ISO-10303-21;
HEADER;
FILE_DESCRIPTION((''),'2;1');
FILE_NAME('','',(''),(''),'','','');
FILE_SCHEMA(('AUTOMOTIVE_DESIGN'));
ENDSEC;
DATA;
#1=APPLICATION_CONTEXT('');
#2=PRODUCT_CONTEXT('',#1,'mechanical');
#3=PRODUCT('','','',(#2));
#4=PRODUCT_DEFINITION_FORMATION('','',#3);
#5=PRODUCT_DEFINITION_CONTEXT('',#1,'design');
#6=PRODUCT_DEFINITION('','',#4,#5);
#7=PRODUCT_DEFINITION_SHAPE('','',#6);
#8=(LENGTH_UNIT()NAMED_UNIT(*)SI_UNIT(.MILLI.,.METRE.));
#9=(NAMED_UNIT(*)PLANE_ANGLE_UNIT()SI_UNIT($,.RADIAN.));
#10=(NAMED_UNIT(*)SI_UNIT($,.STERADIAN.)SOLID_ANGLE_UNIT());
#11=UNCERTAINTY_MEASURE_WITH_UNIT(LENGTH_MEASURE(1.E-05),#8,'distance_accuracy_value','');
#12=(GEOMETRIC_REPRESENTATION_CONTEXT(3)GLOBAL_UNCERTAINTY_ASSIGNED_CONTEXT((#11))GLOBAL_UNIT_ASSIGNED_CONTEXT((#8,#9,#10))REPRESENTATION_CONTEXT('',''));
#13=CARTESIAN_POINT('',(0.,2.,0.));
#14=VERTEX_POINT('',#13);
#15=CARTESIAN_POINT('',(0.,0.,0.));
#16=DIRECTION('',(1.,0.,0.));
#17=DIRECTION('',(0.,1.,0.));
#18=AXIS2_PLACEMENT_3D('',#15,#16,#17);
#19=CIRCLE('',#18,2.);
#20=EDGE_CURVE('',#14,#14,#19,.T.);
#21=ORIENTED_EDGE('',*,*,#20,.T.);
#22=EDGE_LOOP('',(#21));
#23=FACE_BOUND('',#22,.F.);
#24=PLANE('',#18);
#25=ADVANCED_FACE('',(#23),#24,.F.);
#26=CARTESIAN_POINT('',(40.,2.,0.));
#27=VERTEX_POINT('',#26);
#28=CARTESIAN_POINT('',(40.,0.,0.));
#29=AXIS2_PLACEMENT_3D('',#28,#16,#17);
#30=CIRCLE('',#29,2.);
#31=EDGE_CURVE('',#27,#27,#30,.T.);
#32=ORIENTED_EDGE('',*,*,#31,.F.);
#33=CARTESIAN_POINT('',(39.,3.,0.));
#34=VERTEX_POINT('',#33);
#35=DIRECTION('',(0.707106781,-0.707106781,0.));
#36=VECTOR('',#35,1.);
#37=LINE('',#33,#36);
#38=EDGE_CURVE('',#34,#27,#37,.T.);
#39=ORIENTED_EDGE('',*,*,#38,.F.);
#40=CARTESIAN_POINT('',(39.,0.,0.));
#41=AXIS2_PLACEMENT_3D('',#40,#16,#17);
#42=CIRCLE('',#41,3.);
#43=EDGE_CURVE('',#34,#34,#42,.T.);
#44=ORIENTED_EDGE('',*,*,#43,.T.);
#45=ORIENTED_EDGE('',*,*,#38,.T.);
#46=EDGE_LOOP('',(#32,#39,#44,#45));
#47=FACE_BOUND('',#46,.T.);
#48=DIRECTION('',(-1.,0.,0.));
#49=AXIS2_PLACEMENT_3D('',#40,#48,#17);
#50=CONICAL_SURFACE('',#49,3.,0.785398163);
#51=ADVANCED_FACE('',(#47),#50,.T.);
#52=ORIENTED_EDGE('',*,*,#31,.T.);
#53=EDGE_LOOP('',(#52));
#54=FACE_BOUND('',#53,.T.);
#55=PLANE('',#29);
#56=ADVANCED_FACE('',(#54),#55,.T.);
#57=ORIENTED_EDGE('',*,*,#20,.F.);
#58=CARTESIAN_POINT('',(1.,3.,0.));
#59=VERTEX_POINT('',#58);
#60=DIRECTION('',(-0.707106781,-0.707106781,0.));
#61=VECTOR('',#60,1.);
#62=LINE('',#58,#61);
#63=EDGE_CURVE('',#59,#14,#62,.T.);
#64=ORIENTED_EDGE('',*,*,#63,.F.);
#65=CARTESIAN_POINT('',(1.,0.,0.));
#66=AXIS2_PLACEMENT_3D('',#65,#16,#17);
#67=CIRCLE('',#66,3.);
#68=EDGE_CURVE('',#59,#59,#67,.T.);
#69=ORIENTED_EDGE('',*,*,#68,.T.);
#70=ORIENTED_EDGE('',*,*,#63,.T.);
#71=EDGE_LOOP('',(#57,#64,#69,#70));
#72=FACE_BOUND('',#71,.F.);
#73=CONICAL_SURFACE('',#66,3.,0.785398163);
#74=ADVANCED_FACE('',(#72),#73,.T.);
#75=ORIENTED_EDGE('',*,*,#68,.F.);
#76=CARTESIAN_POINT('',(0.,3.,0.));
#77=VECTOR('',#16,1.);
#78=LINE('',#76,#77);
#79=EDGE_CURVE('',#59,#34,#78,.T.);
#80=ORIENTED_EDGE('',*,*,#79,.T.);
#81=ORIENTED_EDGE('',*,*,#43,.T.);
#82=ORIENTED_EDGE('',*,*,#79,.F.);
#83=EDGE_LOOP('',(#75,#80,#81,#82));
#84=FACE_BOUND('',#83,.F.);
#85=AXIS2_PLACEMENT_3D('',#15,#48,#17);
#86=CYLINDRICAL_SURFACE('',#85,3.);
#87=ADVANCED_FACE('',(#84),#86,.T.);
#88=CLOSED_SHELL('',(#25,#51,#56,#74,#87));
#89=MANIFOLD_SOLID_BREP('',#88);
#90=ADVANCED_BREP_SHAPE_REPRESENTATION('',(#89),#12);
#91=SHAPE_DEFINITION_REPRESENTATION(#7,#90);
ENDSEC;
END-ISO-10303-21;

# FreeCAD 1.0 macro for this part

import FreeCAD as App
import Part
import Sketcher


def edges_at(feature, points):
    """Names of the edges that pass closest to the given points."""
    edges = feature.Shape.Edges
    near = lambda p: min(range(len(edges)), key=lambda i: edges[i].distToShape(Part.Vertex(*p))[0])
    return sorted({f"Edge{near(p) + 1}" for p in points})

doc = App.newDocument("Part")
body = doc.addObject("PartDesign::Body", "Body")

sketch1 = body.newObject("Sketcher::SketchObject", "Sketch")
sketch1.AttachmentSupport = (doc.getObject("YZ_Plane"), [""])
sketch1.MapMode = "FlatFace"
sketch1.addGeometry(Part.Circle(App.Vector(0, 0, 0), App.Vector(0, 0, 1), 3), False)
sketch1.addConstraint(Sketcher.Constraint("Coincident", 0, 3, -1, 1))
sketch1.addConstraint(Sketcher.Constraint("Diameter", 0, 6.0))
pad1 = body.newObject("PartDesign::Pad", "Pad")
pad1.Profile = sketch1
pad1.Length = 40
doc.recompute()

chamfer = body.newObject("PartDesign::Chamfer", "Chamfer")
chamfer.Base = (pad1, edges_at(pad1, [(0, -3, 0), (40, -3, 0)]))
chamfer.Size = 1

doc.recompute()
